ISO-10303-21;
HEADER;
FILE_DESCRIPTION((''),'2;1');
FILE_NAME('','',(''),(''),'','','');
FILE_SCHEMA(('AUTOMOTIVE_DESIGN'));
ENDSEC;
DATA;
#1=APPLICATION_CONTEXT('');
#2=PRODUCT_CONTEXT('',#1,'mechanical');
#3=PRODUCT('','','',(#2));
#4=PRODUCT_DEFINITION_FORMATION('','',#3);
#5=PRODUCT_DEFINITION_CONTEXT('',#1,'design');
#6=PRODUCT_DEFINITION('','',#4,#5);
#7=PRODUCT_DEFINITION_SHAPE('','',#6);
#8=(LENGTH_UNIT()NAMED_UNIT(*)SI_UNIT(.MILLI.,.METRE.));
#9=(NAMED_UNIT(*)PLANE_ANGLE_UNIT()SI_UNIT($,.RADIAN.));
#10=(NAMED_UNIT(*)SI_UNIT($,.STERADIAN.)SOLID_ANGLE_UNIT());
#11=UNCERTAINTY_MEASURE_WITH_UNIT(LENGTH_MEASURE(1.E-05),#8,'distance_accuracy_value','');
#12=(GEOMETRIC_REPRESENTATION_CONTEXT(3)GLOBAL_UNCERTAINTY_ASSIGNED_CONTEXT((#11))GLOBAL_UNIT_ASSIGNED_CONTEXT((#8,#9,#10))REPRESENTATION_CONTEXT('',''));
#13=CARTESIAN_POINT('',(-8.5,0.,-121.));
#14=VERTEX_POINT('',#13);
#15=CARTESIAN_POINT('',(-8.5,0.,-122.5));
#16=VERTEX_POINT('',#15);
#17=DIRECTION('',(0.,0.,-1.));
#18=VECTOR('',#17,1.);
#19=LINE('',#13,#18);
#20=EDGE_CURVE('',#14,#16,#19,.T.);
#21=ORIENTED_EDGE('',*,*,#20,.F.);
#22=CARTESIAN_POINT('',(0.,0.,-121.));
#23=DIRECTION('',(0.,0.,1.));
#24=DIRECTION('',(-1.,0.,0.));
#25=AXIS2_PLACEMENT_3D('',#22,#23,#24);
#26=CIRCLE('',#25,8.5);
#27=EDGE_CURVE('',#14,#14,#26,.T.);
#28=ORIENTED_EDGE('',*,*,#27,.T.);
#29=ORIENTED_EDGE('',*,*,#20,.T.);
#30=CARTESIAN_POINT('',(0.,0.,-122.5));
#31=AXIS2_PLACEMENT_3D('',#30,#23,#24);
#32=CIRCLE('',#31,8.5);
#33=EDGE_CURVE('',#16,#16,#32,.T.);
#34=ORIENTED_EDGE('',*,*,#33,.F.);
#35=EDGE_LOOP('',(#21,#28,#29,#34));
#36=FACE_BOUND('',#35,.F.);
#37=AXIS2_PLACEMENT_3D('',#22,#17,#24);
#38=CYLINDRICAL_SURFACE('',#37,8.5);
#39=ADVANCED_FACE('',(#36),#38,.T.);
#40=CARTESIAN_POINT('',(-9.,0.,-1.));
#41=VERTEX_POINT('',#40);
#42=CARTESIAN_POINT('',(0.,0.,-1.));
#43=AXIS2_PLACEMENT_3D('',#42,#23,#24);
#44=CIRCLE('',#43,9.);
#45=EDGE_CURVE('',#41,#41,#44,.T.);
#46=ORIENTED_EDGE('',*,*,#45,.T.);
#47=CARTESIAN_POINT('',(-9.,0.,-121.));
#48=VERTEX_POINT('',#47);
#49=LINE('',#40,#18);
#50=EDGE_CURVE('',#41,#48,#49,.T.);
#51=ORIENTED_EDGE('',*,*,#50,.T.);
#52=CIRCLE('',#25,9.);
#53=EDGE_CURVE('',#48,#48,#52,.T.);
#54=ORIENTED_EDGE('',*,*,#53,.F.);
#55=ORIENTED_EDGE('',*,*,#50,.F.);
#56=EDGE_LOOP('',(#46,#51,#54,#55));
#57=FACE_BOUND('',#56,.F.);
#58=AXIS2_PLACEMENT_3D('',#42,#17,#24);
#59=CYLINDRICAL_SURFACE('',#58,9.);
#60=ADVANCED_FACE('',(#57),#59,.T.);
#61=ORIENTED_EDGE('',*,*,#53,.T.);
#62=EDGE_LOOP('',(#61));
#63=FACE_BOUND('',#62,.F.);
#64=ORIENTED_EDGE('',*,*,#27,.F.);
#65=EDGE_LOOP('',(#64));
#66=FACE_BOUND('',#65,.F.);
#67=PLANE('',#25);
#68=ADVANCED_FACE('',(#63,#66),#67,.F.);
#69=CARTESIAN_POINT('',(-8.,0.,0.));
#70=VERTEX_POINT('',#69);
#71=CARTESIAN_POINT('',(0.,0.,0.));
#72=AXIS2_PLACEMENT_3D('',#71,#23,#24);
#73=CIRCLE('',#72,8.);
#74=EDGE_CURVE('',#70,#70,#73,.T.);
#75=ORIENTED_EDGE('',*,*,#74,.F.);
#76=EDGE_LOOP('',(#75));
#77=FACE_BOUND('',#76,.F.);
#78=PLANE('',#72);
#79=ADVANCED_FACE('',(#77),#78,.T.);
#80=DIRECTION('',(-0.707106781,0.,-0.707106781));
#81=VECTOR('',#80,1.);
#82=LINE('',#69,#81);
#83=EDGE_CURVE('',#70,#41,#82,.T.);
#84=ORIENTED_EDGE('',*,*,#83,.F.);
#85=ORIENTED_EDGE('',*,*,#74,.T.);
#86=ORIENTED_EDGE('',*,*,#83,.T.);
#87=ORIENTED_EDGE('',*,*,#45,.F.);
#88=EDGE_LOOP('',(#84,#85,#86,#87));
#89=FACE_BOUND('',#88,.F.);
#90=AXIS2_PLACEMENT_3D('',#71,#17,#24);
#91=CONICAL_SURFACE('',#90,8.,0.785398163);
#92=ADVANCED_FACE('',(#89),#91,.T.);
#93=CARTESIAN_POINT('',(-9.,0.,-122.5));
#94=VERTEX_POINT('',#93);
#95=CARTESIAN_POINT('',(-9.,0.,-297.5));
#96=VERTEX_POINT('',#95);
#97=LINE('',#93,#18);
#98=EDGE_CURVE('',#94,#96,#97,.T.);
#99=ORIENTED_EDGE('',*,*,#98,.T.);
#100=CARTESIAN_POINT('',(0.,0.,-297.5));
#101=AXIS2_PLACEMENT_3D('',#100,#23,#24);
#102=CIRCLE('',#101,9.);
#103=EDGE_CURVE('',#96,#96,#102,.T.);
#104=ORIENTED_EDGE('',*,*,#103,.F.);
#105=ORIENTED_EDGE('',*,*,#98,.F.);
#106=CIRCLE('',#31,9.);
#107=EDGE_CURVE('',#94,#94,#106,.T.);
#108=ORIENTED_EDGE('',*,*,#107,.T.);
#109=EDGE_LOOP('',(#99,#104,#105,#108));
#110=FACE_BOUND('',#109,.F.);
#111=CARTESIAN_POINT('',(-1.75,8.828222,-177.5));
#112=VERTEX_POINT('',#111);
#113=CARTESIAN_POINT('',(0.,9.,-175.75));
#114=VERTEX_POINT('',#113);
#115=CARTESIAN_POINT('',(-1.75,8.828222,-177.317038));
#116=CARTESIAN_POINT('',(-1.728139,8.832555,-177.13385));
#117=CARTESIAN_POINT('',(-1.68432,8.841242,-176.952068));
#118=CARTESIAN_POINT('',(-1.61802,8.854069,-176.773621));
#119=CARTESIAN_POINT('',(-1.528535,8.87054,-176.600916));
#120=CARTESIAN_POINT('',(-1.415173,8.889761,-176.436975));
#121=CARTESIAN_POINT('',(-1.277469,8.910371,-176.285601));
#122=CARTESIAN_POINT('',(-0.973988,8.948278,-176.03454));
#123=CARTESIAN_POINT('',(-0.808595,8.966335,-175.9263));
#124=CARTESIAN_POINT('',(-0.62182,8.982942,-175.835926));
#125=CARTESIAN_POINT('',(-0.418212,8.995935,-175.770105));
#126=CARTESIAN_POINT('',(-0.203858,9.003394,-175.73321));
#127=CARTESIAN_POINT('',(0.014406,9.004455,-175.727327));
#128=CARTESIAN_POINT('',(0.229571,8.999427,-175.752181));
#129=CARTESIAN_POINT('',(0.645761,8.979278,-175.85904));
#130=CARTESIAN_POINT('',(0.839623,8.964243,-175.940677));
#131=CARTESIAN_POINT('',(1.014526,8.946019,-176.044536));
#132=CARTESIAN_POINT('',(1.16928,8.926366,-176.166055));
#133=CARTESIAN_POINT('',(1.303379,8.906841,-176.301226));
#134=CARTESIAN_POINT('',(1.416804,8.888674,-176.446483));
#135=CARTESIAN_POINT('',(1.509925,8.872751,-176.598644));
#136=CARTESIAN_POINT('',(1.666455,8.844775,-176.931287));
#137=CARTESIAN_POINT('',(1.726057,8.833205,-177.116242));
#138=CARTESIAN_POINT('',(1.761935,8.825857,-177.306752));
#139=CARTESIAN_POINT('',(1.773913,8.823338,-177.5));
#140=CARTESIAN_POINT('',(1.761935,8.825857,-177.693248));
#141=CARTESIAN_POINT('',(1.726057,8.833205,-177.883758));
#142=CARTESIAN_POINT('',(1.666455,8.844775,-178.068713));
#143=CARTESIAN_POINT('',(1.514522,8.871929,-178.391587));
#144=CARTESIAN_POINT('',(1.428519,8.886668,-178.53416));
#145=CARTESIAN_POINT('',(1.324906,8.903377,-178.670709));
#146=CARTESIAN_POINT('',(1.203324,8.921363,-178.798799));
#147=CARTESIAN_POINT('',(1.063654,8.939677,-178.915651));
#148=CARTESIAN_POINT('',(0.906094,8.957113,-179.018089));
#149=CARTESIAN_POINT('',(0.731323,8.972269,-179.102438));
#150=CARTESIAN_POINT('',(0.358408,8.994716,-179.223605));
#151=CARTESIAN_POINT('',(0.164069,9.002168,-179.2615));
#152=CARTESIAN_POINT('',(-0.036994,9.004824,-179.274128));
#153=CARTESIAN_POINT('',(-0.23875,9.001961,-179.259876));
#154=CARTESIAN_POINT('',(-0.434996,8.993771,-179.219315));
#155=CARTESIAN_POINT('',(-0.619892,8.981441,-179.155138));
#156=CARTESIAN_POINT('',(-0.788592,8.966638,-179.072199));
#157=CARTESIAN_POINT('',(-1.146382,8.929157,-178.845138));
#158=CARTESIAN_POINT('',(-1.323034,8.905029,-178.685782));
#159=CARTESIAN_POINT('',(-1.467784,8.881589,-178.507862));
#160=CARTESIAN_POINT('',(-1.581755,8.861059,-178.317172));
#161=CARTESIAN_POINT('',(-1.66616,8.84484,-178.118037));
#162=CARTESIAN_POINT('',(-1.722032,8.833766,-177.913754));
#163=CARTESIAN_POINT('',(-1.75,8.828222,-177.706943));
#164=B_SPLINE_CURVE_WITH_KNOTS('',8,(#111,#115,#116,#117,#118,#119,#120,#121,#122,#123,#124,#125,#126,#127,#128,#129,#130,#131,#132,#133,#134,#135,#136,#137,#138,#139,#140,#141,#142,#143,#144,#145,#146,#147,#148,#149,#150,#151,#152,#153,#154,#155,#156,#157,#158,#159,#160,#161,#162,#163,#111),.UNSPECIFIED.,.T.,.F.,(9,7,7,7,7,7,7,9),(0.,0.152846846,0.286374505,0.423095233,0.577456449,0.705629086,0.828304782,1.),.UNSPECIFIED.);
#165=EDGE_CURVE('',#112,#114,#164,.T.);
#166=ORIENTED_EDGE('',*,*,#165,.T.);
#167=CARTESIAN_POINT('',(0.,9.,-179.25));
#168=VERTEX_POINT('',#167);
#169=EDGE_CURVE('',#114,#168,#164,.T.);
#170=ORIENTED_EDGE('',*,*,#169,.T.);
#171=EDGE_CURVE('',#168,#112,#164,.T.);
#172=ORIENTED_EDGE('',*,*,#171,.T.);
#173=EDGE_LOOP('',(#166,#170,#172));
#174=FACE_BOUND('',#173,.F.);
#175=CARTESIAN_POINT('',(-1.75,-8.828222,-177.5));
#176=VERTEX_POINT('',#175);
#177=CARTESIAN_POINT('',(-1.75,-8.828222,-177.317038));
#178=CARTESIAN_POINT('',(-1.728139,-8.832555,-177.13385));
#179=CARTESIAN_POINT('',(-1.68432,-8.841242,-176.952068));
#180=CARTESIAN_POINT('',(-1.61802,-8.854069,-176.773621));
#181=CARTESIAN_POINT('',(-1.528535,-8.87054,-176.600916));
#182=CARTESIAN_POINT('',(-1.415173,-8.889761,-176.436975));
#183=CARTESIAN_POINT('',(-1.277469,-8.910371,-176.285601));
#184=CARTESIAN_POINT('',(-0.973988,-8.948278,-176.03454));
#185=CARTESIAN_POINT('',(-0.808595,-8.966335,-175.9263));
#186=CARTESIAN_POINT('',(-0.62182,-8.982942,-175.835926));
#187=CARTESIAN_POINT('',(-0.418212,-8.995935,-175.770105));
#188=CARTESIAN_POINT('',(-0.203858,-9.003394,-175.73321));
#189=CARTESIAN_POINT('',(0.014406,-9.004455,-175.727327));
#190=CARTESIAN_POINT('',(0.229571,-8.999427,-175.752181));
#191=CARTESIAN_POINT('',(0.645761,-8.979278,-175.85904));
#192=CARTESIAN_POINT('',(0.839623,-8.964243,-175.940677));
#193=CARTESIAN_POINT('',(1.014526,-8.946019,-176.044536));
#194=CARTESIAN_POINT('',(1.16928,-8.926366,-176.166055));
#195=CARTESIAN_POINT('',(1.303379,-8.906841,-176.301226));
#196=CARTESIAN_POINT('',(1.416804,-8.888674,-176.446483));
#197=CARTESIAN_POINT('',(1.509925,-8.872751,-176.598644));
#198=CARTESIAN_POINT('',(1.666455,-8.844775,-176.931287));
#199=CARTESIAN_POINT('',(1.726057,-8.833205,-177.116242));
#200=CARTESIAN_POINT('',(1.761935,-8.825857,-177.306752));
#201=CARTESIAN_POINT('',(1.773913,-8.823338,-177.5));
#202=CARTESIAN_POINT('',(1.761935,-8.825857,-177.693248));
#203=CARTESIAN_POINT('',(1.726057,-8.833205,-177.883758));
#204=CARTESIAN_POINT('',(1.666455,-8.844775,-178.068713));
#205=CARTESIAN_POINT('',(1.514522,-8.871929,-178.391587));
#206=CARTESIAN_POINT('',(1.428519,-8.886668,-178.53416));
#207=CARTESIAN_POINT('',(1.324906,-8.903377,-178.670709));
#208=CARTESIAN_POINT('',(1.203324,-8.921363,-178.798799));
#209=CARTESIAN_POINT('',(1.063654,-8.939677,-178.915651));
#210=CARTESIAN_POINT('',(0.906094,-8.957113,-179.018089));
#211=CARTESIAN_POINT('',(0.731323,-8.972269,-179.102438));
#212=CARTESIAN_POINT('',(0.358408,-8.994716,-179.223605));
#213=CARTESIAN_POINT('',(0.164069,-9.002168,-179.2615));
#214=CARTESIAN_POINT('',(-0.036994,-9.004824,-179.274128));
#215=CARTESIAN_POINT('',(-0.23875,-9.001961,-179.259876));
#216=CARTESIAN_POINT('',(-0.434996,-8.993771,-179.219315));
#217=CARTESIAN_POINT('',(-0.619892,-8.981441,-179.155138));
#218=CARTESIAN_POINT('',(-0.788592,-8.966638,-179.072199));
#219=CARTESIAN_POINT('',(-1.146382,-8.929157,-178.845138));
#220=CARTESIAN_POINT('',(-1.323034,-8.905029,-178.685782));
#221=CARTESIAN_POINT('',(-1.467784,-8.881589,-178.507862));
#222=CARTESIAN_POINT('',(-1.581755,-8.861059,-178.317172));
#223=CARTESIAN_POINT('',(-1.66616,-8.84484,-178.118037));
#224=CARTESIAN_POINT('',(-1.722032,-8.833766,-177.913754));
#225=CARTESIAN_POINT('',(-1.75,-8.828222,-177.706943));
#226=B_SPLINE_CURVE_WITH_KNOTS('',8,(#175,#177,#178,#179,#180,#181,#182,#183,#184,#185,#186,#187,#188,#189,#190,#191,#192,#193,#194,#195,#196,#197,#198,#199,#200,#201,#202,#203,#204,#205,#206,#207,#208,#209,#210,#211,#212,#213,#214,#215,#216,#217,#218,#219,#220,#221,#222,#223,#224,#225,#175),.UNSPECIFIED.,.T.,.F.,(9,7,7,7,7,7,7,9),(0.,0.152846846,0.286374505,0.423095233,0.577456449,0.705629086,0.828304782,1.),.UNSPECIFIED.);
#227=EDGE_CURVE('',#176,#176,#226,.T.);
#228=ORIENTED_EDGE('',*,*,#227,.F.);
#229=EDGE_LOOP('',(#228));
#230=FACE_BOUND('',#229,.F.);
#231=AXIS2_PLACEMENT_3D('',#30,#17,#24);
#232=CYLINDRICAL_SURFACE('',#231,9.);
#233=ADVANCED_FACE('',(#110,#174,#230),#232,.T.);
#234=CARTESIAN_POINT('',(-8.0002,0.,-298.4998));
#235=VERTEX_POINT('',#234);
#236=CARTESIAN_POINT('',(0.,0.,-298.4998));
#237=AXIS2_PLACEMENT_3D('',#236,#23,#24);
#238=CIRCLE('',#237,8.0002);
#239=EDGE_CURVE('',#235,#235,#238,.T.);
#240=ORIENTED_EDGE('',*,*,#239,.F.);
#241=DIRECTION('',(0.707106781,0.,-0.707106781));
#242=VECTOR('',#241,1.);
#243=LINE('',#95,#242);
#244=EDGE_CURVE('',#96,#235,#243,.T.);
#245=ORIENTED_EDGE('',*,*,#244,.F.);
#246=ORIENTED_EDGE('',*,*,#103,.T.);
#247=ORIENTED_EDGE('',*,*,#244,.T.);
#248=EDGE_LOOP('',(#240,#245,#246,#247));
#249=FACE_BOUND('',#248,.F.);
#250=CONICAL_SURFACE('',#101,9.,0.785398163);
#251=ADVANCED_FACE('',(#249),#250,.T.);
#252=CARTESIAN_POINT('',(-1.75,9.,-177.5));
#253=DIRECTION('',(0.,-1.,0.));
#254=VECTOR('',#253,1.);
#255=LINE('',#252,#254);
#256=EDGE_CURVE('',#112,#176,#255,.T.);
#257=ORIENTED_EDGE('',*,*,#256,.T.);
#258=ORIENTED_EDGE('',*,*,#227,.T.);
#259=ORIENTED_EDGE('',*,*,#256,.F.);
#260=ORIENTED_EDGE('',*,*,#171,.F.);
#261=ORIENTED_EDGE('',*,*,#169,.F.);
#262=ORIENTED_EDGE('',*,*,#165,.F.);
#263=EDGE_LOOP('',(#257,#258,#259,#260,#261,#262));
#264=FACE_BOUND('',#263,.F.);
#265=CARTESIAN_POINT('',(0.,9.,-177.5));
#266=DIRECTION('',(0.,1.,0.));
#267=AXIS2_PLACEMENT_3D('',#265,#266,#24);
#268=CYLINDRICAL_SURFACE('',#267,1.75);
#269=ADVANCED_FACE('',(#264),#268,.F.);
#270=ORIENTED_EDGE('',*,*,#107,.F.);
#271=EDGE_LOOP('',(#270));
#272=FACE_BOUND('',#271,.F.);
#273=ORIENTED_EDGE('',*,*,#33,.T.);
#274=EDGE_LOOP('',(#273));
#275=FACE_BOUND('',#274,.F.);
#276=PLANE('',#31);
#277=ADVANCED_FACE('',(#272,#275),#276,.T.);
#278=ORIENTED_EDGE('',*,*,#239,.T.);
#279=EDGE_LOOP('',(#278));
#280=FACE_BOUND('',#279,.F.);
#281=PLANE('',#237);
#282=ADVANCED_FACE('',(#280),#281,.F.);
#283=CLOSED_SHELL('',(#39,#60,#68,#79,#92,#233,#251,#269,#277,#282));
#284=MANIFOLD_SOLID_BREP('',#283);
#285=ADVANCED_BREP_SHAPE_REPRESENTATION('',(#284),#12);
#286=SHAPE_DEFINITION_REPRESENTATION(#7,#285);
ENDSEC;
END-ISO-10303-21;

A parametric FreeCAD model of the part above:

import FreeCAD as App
import Part
import Sketcher

V = App.Vector
Q = App.Units.Quantity

doc = App.newDocument("Part")
body = doc.addObject("PartDesign::Body", "Body")

# Sketch on XZ plane
sketch1 = body.newObject("Sketcher::SketchObject", "Sketch")
sketch1.AttachmentSupport = (doc.getObject("XZ_Plane"), [""])
sketch1.MapMode = "FlatFace"
sketch1.addGeometry(Part.LineSegment(V(-8, 0, 0), V(0, 0, 0)), False)
sketch1.addGeometry(Part.LineSegment(V(0, 0, 0), V(0, -298.4998, 0)), False)
sketch1.addGeometry(Part.LineSegment(V(0, -298.4998, 0), V(-8.0002, -298.4998, 0)), False)
sketch1.addGeometry(Part.LineSegment(V(-8.0002, -298.4998, 0), V(-9, -297.5, 0)), False)
sketch1.addGeometry(Part.LineSegment(V(-9, -297.5, 0), V(-9, -122.5, 0)), False)
sketch1.addGeometry(Part.LineSegment(V(-9, -122.5, 0), V(-8.5, -122.5, 0)), False)
sketch1.addGeometry(Part.LineSegment(V(-8.5, -122.5, 0), V(-8.5, -121, 0)), False)
sketch1.addGeometry(Part.LineSegment(V(-8.5, -121, 0), V(-9, -121, 0)), False)
sketch1.addGeometry(Part.LineSegment(V(-9, -121, 0), V(-9, -1, 0)), False)
sketch1.addGeometry(Part.LineSegment(V(-9, -1, 0), V(-8, 0, 0)), False)
sketch1.addConstraint(Sketcher.Constraint("Coincident", 0, 2, 1, 1))
sketch1.addConstraint(Sketcher.Constraint("Coincident", 1, 2, 2, 1))
sketch1.addConstraint(Sketcher.Constraint("Coincident", 2, 2, 3, 1))
sketch1.addConstraint(Sketcher.Constraint("Coincident", 3, 2, 4, 1))
sketch1.addConstraint(Sketcher.Constraint("Coincident", 4, 2, 5, 1))
sketch1.addConstraint(Sketcher.Constraint("Coincident", 5, 2, 6, 1))
sketch1.addConstraint(Sketcher.Constraint("Coincident", 6, 2, 7, 1))
sketch1.addConstraint(Sketcher.Constraint("Coincident", 7, 2, 8, 1))
sketch1.addConstraint(Sketcher.Constraint("Coincident", 8, 2, 9, 1))
sketch1.addConstraint(Sketcher.Constraint("Coincident", 9, 2, 0, 1))
sketch1.addConstraint(Sketcher.Constraint("Horizontal", 0))
sketch1.addConstraint(Sketcher.Constraint("Vertical", 1))
sketch1.addConstraint(Sketcher.Constraint("Horizontal", 2))
sketch1.addConstraint(Sketcher.Constraint("Vertical", 4))
sketch1.addConstraint(Sketcher.Constraint("Horizontal", 5))
sketch1.addConstraint(Sketcher.Constraint("Vertical", 6))
sketch1.addConstraint(Sketcher.Constraint("Horizontal", 7))
sketch1.addConstraint(Sketcher.Constraint("Vertical", 8))
sketch1.addConstraint(Sketcher.Constraint("Coincident", 0, 2, -1, 1))
sketch1.addConstraint(Sketcher.Constraint("Perpendicular", 3, 9))
sketch1.addConstraint(Sketcher.Constraint("Vertical", 4, 2, 7, 2))
sketch1.addConstraint(Sketcher.Constraint("Vertical", 2, 2, 9, 2))
sketch1.addConstraint(Sketcher.Constraint("DistanceX", 0, 1, 0, 2, Q("8 mm")))
sketch1.addConstraint(Sketcher.Constraint("DistanceY", 4, 1, 4, 2, Q("175 mm")))
sketch1.addConstraint(Sketcher.Constraint("DistanceY", 8, 1, 8, 2, Q("120 mm")))
sketch1.addConstraint(Sketcher.Constraint("Angle", 3, Q("135 deg")))
sketch1.addConstraint(Sketcher.Constraint("DistanceX", 5, 1, 5, 2, Q("0.5 mm")))
sketch1.addConstraint(Sketcher.Constraint("DistanceY", 6, 1, 6, 2, Q("1.5 mm")))
sketch1.addConstraint(Sketcher.Constraint("DistanceX", 3, 2, -1, 1, Q("9 mm")))
revolution = body.newObject("PartDesign::Revolution", "Revolution")
revolution.Profile = sketch1
revolution.ReferenceAxis = (sketch1, ["V_Axis"])
revolution.Angle = 360

# Sketch on XZ plane
sketch2 = body.newObject("Sketcher::SketchObject", "Sketch001")
sketch2.AttachmentSupport = (doc.getObject("XZ_Plane"), [""])
sketch2.MapMode = "FlatFace"
sketch2.AttachmentOffset = App.Placement(V(0, 0, -9), App.Rotation())
sketch2.addGeometry(Part.Circle(V(0, -177.5, 0), V(0, 0, 1), 1.75), False)
sketch2.addConstraint(Sketcher.Constraint("PointOnObject", 0, 3, -2))
sketch2.addConstraint(Sketcher.Constraint("Diameter", 0, Q("3.5 mm")))
sketch2.addConstraint(Sketcher.Constraint("DistanceY", 0, 3, -1, 1, Q("177.5 mm")))
pocket1 = body.newObject("PartDesign::Pocket", "Pocket")
pocket1.Profile = sketch2
pocket1.Type = "ThroughAll"
pocket1.Reversed = True

doc.recompute()
